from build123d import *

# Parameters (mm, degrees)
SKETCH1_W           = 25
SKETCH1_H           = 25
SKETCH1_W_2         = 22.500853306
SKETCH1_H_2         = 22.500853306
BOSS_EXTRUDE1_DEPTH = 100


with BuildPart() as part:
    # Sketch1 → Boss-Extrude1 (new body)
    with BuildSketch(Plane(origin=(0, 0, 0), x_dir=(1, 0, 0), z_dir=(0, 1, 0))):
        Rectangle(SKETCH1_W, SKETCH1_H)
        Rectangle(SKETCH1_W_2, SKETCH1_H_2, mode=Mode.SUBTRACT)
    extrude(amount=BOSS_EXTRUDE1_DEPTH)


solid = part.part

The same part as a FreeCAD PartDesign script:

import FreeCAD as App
import Part
import Sketcher
from FreeCAD import Vector
Q = App.Units.Quantity


def add_polygon(sketch, points):
    """Adds a closed chain of lines whose ends are joined by coincident constraints."""
    first, n = sketch.GeometryCount, len(points)
    for a, b in zip(points, points[1:] + points[:1]):
        sketch.addGeometry(Part.LineSegment(App.Vector(*a, 0), App.Vector(*b, 0)), False)
    for i in range(n):
        sketch.addConstraint(Sketcher.Constraint("Coincident", first + i, 2, first + (i + 1) % n, 1))

doc = App.newDocument("Part")
body = doc.addObject("PartDesign::Body", "Body")

# Sketch on XZ plane
sketch1 = body.newObject("Sketcher::SketchObject", "Sketch")
sketch1.AttachmentSupport = (doc.getObject("XZ_Plane"), [""])
sketch1.MapMode = "FlatFace"
add_polygon(sketch1, [(-12, -12), (-12, 12), (12, 12), (12, -12)])  # lines 0-3
add_polygon(sketch1, [(11, 11), (-11, 11), (-11, -11), (11, -11)])  # lines 4-7
sketch1.addConstraint(Sketcher.Constraint("Vertical", 0))
sketch1.addConstraint(Sketcher.Constraint("Horizontal", 1))
sketch1.addConstraint(Sketcher.Constraint("Vertical", 2))
sketch1.addConstraint(Sketcher.Constraint("Horizontal", 3))
sketch1.addConstraint(Sketcher.Constraint("Horizontal", 4))
sketch1.addConstraint(Sketcher.Constraint("Vertical", 5))
sketch1.addConstraint(Sketcher.Constraint("Horizontal", 6))
sketch1.addConstraint(Sketcher.Constraint("Vertical", 7))
sketch1.addConstraint(Sketcher.Constraint("Symmetric", 0, 2, 2, 2, -1, 1))
sketch1.addConstraint(Sketcher.Constraint("Symmetric", 4, 2, 6, 2, -1, 1))
sketch1.addConstraint(Sketcher.Constraint("Equal", 3, 0))
sketch1.addConstraint(Sketcher.Constraint("Equal", 6, 5))
sketch1.addConstraint(Sketcher.Constraint("DistanceX", 1, 1, 1, 2, Q("25 mm")))
sketch1.addConstraint(Sketcher.Constraint("DistanceX", 4, 2, 4, 1, Q("22.500853 mm")))
pad1 = body.newObject("PartDesign::Pad", "Pad")
pad1.Profile = sketch1
pad1.Length = 100
pad1.Reversed = True

doc.recompute()
